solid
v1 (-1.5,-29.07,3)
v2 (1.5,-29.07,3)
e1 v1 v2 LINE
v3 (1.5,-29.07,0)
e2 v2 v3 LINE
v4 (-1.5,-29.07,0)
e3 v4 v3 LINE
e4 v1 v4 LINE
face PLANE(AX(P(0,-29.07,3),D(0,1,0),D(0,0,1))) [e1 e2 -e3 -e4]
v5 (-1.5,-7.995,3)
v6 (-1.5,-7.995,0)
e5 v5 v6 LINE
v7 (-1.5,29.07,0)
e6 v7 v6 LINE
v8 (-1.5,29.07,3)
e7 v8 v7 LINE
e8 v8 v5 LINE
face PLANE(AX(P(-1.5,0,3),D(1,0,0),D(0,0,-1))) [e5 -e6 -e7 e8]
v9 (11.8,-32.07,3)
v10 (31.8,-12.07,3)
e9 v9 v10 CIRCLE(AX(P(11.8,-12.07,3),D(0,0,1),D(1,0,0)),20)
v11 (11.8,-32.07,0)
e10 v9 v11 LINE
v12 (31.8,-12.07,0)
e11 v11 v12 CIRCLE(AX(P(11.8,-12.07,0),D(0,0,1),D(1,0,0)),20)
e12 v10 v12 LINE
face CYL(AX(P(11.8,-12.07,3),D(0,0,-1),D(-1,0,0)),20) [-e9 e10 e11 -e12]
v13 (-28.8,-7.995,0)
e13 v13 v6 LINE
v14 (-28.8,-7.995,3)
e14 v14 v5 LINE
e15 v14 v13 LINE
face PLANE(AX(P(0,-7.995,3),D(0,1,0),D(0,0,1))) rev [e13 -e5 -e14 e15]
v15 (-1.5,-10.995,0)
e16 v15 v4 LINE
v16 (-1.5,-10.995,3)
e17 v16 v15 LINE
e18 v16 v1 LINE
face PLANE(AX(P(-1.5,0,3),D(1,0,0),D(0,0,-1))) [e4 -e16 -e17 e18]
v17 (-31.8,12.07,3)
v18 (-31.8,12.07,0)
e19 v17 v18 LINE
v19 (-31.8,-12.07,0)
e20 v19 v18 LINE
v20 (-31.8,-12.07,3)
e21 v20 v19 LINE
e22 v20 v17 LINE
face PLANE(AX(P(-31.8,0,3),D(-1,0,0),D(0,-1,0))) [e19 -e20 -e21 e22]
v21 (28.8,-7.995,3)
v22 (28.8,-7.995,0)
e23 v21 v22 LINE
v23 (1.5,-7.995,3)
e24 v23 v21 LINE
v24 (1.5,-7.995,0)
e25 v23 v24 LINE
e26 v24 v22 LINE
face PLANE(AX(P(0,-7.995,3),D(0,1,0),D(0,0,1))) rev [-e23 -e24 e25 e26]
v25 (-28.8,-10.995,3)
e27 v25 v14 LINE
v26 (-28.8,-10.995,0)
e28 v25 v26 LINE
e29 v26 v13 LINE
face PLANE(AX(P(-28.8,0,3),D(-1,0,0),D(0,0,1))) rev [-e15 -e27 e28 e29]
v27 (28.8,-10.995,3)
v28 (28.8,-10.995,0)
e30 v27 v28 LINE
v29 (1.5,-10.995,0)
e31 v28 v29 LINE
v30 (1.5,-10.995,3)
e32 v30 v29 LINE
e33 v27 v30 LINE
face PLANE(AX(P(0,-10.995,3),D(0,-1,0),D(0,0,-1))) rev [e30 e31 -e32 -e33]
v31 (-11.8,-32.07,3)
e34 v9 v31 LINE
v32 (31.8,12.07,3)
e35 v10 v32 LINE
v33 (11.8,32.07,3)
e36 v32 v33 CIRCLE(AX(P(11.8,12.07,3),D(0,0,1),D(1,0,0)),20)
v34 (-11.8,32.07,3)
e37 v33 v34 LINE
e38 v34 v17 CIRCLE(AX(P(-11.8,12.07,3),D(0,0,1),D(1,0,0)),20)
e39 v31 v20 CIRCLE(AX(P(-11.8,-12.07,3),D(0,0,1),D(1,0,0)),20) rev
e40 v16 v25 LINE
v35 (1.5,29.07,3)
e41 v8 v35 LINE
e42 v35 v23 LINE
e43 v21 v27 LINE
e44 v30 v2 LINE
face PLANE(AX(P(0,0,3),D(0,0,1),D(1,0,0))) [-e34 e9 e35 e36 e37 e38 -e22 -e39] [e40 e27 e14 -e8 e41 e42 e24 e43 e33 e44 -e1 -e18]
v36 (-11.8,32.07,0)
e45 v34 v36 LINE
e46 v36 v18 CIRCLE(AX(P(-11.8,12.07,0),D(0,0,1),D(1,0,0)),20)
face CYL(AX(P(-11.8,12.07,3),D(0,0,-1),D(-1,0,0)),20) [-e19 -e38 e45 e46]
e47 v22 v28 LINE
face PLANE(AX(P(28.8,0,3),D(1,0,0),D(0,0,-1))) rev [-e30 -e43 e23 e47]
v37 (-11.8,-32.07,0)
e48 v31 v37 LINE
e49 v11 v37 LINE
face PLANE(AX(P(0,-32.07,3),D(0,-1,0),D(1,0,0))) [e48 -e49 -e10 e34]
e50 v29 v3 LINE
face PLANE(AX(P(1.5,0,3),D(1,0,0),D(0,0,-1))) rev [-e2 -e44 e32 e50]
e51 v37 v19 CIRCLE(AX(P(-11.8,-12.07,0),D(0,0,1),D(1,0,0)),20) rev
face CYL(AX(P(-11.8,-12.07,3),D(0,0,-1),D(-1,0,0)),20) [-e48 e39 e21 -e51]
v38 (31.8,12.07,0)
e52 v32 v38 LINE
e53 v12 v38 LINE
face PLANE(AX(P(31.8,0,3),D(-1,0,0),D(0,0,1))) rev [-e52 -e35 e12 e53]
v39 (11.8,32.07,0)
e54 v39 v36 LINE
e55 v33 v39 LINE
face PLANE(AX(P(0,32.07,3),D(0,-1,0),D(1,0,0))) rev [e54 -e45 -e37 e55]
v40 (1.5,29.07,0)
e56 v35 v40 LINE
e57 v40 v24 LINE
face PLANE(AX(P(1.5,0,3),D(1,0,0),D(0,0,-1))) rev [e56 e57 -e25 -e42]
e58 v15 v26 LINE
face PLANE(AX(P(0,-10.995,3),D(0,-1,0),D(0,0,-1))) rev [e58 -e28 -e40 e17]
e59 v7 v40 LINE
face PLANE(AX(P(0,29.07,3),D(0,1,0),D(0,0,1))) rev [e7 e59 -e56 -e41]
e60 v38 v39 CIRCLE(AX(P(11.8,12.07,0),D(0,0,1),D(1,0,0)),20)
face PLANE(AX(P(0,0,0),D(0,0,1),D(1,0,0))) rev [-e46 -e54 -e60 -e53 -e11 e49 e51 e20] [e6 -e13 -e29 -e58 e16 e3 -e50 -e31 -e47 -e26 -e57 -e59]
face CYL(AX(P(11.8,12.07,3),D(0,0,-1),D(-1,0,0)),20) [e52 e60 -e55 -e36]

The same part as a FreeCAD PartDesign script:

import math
import FreeCAD as App
import Part
import Sketcher

V = App.Vector

doc = App.newDocument("Part")
body = doc.addObject("PartDesign::Body", "Body")

sketch1 = body.newObject("Sketcher::SketchObject", "Sketch")
sketch1.AttachmentSupport = (doc.getObject("XY_Plane"), [""])
sketch1.MapMode = "FlatFace"
sketch1.addGeometry(Part.LineSegment(V(-11.8, -32.1, 0), V(11.8, -32.1, 0)), False)
sketch1.addGeometry(Part.ArcOfCircle(Part.Circle(V(11.8, -12.1, 0), V(0, 0, 1), 20), math.radians(-90), math.radians(0)), False)
sketch1.addGeometry(Part.LineSegment(V(31.8, -12.1, 0), V(31.8, 12.1, 0)), False)
sketch1.addGeometry(Part.ArcOfCircle(Part.Circle(V(11.8, 12.1, 0), V(0, 0, 1), 20), math.radians(0), math.radians(90)), False)
sketch1.addGeometry(Part.LineSegment(V(11.8, 32.1, 0), V(-11.8, 32.1, 0)), False)
sketch1.addGeometry(Part.ArcOfCircle(Part.Circle(V(-11.8, 12.1, 0), V(0, 0, 1), 20), math.radians(90), math.radians(180)), False)
sketch1.addGeometry(Part.LineSegment(V(-31.8, 12.1, 0), V(-31.8, -12.1, 0)), False)
sketch1.addGeometry(Part.ArcOfCircle(Part.Circle(V(-11.8, -12.1, 0), V(0, 0, 1), 20), math.radians(180), math.radians(270)), False)
sketch1.addGeometry(Part.LineSegment(V(-1.5, -11, 0), V(-28.8, -11, 0)), False)
sketch1.addGeometry(Part.LineSegment(V(-28.8, -11, 0), V(-28.8, -8, 0)), False)
sketch1.addGeometry(Part.LineSegment(V(-28.8, -8, 0), V(-1.5, -8, 0)), False)
sketch1.addGeometry(Part.LineSegment(V(-1.5, -8, 0), V(-1.5, 29.1, 0)), False)
sketch1.addGeometry(Part.LineSegment(V(-1.5, 29.1, 0), V(1.5, 29.1, 0)), False)
sketch1.addGeometry(Part.LineSegment(V(1.5, 29.1, 0), V(1.5, -8, 0)), False)
sketch1.addGeometry(Part.LineSegment(V(1.5, -8, 0), V(28.8, -8, 0)), False)
sketch1.addGeometry(Part.LineSegment(V(28.8, -8, 0), V(28.8, -11, 0)), False)
sketch1.addGeometry(Part.LineSegment(V(28.8, -11, 0), V(1.5, -11, 0)), False)
sketch1.addGeometry(Part.LineSegment(V(1.5, -11, 0), V(1.5, -29.1, 0)), False)
sketch1.addGeometry(Part.LineSegment(V(1.5, -29.1, 0), V(-1.5, -29.1, 0)), False)
sketch1.addGeometry(Part.LineSegment(V(-1.5, -29.1, 0), V(-1.5, -11, 0)), False)
sketch1.addConstraint(Sketcher.Constraint("Tangent", 0, 2, 1, 1))
sketch1.addConstraint(Sketcher.Constraint("Tangent", 1, 2, 2, 1))
sketch1.addConstraint(Sketcher.Constraint("Tangent", 2, 2, 3, 1))
sketch1.addConstraint(Sketcher.Constraint("Tangent", 3, 2, 4, 1))
sketch1.addConstraint(Sketcher.Constraint("Tangent", 4, 2, 5, 1))
sketch1.addConstraint(Sketcher.Constraint("Tangent", 5, 2, 6, 1))
sketch1.addConstraint(Sketcher.Constraint("Tangent", 6, 2, 7, 1))
sketch1.addConstraint(Sketcher.Constraint("Tangent", 7, 2, 0, 1))
sketch1.addConstraint(Sketcher.Constraint("Coincident", 8, 2, 9, 1))
sketch1.addConstraint(Sketcher.Constraint("Coincident", 9, 2, 10, 1))
sketch1.addConstraint(Sketcher.Constraint("Coincident", 10, 2, 11, 1))
sketch1.addConstraint(Sketcher.Constraint("Coincident", 11, 2, 12, 1))
sketch1.addConstraint(Sketcher.Constraint("Coincident", 12, 2, 13, 1))
sketch1.addConstraint(Sketcher.Constraint("Coincident", 13, 2, 14, 1))
sketch1.addConstraint(Sketcher.Constraint("Coincident", 14, 2, 15, 1))
sketch1.addConstraint(Sketcher.Constraint("Coincident", 15, 2, 16, 1))
sketch1.addConstraint(Sketcher.Constraint("Coincident", 16, 2, 17, 1))
sketch1.addConstraint(Sketcher.Constraint("Coincident", 17, 2, 18, 1))
sketch1.addConstraint(Sketcher.Constraint("Coincident", 18, 2, 19, 1))
sketch1.addConstraint(Sketcher.Constraint("Coincident", 19, 2, 8, 1))
sketch1.addConstraint(Sketcher.Constraint("Horizontal", 0))
sketch1.addConstraint(Sketcher.Constraint("Vertical", 2))
sketch1.addConstraint(Sketcher.Constraint("Horizontal", 4))
sketch1.addConstraint(Sketcher.Constraint("Vertical", 6))
sketch1.addConstraint(Sketcher.Constraint("Horizontal", 8))
sketch1.addConstraint(Sketcher.Constraint("Vertical", 9))
sketch1.addConstraint(Sketcher.Constraint("Horizontal", 10))
sketch1.addConstraint(Sketcher.Constraint("Vertical", 11))
sketch1.addConstraint(Sketcher.Constraint("Horizontal", 12))
sketch1.addConstraint(Sketcher.Constraint("Vertical", 13))
sketch1.addConstraint(Sketcher.Constraint("Horizontal", 14))
sketch1.addConstraint(Sketcher.Constraint("Vertical", 15))
sketch1.addConstraint(Sketcher.Constraint("Horizontal", 16))
sketch1.addConstraint(Sketcher.Constraint("Vertical", 17))
sketch1.addConstraint(Sketcher.Constraint("Horizontal", 18))
sketch1.addConstraint(Sketcher.Constraint("Vertical", 19))
sketch1.addConstraint(Sketcher.Constraint("Equal", 1, 3))
sketch1.addConstraint(Sketcher.Constraint("Equal", 3, 5))
sketch1.addConstraint(Sketcher.Constraint("Equal", 5, 7))
sketch1.addConstraint(Sketcher.Constraint("Symmetric", 1, 3, 5, 3, -1, 1))
sketch1.addConstraint(Sketcher.Constraint("Symmetric", 11, 2, 17, 2, -1, 1))
sketch1.addConstraint(Sketcher.Constraint("Symmetric", 10, 2, 13, 2, -2))
sketch1.addConstraint(Sketcher.Constraint("Symmetric", 8, 2, 15, 2, -2))
sketch1.addConstraint(Sketcher.Constraint("Vertical", 11, 2, 18, 2))
sketch1.addConstraint(Sketcher.Constraint("Equal", 18, 9))
sketch1.addConstraint(Sketcher.Constraint("Radius", 1, 20.0))
sketch1.addConstraint(Sketcher.Constraint("DistanceX", 12, 1, 12, 2, 3.0))
sketch1.addConstraint(Sketcher.Constraint("DistanceX", 0, 1, 0, 2, 23.6))
sketch1.addConstraint(Sketcher.Constraint("DistanceX", 8, 2, 8, 1, 27.3))
sketch1.addConstraint(Sketcher.Constraint("DistanceY", 11, 2, 4, 2, 3.0))
sketch1.addConstraint(Sketcher.Constraint("DistanceY", 2, 1, 2, 2, 24.14))
sketch1.addConstraint(Sketcher.Constraint("DistanceY", 11, 1, 11, 2, 37.065))
pad1 = body.newObject("PartDesign::Pad", "Pad")
pad1.Profile = sketch1
pad1.Length = 3

doc.recompute()
